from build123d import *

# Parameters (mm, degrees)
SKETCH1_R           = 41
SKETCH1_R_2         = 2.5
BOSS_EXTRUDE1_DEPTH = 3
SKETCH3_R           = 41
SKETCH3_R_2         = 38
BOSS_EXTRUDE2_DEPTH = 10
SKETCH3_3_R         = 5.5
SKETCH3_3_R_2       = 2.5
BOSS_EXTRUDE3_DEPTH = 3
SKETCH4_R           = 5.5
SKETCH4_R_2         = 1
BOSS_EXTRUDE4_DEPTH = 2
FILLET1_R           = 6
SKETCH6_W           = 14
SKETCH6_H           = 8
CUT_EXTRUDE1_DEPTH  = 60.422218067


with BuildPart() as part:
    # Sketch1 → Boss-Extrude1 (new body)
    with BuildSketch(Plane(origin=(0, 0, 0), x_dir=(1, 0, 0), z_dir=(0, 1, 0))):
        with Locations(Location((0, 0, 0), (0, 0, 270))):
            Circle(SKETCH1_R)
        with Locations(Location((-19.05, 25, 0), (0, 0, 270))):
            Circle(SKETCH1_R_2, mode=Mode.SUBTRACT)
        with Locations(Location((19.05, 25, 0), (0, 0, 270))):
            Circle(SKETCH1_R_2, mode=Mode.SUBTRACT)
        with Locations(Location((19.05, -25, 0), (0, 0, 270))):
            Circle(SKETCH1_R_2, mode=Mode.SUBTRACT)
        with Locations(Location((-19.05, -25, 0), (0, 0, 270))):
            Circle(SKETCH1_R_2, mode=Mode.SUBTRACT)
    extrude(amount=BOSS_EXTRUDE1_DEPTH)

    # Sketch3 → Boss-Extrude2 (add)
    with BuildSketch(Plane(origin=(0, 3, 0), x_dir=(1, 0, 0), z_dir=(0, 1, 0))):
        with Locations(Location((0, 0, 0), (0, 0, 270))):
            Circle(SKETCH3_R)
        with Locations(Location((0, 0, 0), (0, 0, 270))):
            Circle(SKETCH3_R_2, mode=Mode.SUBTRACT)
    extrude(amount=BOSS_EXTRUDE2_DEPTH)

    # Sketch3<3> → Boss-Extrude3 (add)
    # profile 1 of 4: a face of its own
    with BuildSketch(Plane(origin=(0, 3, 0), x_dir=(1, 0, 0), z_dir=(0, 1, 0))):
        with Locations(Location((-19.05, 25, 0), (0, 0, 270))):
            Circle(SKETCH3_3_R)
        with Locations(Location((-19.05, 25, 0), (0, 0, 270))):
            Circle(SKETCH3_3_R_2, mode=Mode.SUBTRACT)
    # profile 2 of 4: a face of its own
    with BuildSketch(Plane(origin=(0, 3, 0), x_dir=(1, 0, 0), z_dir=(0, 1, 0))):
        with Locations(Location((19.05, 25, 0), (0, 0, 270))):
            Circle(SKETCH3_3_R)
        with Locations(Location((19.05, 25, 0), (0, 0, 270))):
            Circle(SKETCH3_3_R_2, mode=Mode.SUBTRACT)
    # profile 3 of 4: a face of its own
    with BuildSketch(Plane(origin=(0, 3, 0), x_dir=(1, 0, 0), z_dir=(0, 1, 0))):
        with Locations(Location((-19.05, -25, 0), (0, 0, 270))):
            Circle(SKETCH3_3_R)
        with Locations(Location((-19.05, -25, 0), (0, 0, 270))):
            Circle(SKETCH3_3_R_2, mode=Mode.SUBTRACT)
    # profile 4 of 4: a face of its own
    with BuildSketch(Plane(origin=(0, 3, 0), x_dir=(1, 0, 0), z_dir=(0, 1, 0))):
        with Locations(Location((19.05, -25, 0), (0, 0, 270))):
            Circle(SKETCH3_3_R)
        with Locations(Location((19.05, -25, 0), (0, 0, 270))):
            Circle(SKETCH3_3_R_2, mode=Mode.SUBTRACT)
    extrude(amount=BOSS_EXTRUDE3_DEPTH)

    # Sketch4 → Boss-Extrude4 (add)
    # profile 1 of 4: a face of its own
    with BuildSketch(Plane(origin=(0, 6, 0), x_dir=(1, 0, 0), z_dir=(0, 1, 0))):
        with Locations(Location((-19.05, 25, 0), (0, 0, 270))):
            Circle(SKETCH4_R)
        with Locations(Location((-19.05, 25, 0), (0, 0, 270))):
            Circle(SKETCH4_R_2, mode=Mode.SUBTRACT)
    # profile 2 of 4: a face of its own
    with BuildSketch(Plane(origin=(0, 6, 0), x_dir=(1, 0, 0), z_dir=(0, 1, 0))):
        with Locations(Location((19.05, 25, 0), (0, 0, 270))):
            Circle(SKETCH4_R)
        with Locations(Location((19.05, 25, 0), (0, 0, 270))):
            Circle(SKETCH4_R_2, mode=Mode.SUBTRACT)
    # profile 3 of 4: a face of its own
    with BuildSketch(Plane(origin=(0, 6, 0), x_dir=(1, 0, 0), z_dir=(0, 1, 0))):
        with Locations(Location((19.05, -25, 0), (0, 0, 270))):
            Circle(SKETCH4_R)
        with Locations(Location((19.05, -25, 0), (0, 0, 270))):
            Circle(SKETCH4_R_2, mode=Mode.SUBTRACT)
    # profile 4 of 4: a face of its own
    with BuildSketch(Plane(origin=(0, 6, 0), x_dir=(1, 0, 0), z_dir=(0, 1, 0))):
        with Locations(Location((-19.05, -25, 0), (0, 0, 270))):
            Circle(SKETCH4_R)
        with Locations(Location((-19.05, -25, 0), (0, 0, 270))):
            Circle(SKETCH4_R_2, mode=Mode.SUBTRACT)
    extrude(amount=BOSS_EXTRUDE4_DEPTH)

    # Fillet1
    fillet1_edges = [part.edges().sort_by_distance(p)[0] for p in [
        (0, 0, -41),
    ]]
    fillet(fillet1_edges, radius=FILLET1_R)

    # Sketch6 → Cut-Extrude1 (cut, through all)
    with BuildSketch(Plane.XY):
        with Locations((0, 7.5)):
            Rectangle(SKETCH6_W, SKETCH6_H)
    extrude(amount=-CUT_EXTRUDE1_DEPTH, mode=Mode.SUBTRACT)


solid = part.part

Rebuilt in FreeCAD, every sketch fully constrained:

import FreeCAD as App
import Part
import Sketcher


def edges_at(feature, points):
    """Names of the edges that pass closest to the given points."""
    edges = feature.Shape.Edges
    near = lambda p: min(range(len(edges)), key=lambda i: edges[i].distToShape(Part.Vertex(*p))[0])
    return sorted({f"Edge{near(p) + 1}" for p in points})

doc = App.newDocument("Part")
body = doc.addObject("PartDesign::Body", "Body")

sketch1 = body.newObject("Sketcher::SketchObject", "Sketch")
sketch1.AttachmentSupport = (doc.getObject("XZ_Plane"), [""])
sketch1.MapMode = "FlatFace"
sketch1.addGeometry([
    Part.Circle(App.Vector(0, 0, 0), App.Vector(0, 0, 1), 41),
    Part.Circle(App.Vector(-19.05, -25, 0), App.Vector(0, 0, 1), 2.5),
    Part.Circle(App.Vector(-19.05, 25, 0), App.Vector(0, 0, 1), 2.5),
    Part.Circle(App.Vector(19.05, -25, 0), App.Vector(0, 0, 1), 2.5),
    Part.Circle(App.Vector(19.05, 25, 0), App.Vector(0, 0, 1), 2.5),
], False)
sketch1.addConstraint([
    Sketcher.Constraint("Coincident", 0, 3, -1, 1),
    Sketcher.Constraint("Equal", 1, 2),
    Sketcher.Constraint("Equal", 2, 3),
    Sketcher.Constraint("Equal", 3, 4),
    Sketcher.Constraint("Symmetric", 2, 3, 3, 3, -1, 1),
    Sketcher.Constraint("Symmetric", 1, 3, 4, 3, -1, 1),
    Sketcher.Constraint("Symmetric", 1, 3, 3, 3, -2),
    Sketcher.Constraint("Diameter", 0, 82.0),
    Sketcher.Constraint("Diameter", 1, 5.0),
    Sketcher.Constraint("DistanceY", 1, 3, -1, 1, 25.0),
    Sketcher.Constraint("DistanceX", 1, 3, 3, 3, 38.1),
])
pad1 = body.newObject("PartDesign::Pad", "Pad")
pad1.Profile = sketch1
pad1.Length = 3
pad1.Reversed = True

sketch2 = body.newObject("Sketcher::SketchObject", "Sketch001")
sketch2.AttachmentSupport = (doc.getObject("XZ_Plane"), [""])
sketch2.MapMode = "FlatFace"
sketch2.AttachmentOffset = App.Placement(App.Vector(0, 0, -3), App.Rotation())
sketch2.addGeometry([
    Part.Circle(App.Vector(0, 0, 0), App.Vector(0, 0, 1), 41),
    Part.Circle(App.Vector(0, 0, 0), App.Vector(0, 0, 1), 38),
], False)
sketch2.addConstraint([
    Sketcher.Constraint("Coincident", 0, 3, -1, 1),
    Sketcher.Constraint("Coincident", 1, 3, -1, 1),
    Sketcher.Constraint("Diameter", 0, 82.0),
    Sketcher.Constraint("Diameter", 1, 76.0),
])
pad2 = body.newObject("PartDesign::Pad", "Pad001")
pad2.Profile = sketch2
pad2.Length = 10
pad2.Reversed = True

sketch3 = body.newObject("Sketcher::SketchObject", "Sketch002")
sketch3.AttachmentSupport = (doc.getObject("XZ_Plane"), [""])
sketch3.MapMode = "FlatFace"
sketch3.AttachmentOffset = App.Placement(App.Vector(0, 0, -3), App.Rotation())
sketch3.addGeometry([
    Part.Circle(App.Vector(-19.05, -25, 0), App.Vector(0, 0, 1), 5.5),
    Part.Circle(App.Vector(-19.05, -25, 0), App.Vector(0, 0, 1), 2.5),
    Part.Circle(App.Vector(19.05, -25, 0), App.Vector(0, 0, 1), 5.5),
    Part.Circle(App.Vector(19.05, -25, 0), App.Vector(0, 0, 1), 2.5),
    Part.Circle(App.Vector(-19.05, 25, 0), App.Vector(0, 0, 1), 5.5),
    Part.Circle(App.Vector(-19.05, 25, 0), App.Vector(0, 0, 1), 2.5),
    Part.Circle(App.Vector(19.05, 25, 0), App.Vector(0, 0, 1), 5.5),
    Part.Circle(App.Vector(19.05, 25, 0), App.Vector(0, 0, 1), 2.5),
], False)
sketch3.addConstraint([
    Sketcher.Constraint("Coincident", 1, 3, 0, 3),
    Sketcher.Constraint("Coincident", 3, 3, 2, 3),
    Sketcher.Constraint("Coincident", 5, 3, 4, 3),
    Sketcher.Constraint("Coincident", 7, 3, 6, 3),
    Sketcher.Constraint("Equal", 0, 2),
    Sketcher.Constraint("Equal", 1, 3),
    Sketcher.Constraint("Equal", 2, 4),
    Sketcher.Constraint("Equal", 3, 5),
    Sketcher.Constraint("Equal", 4, 6),
    Sketcher.Constraint("Equal", 5, 7),
    Sketcher.Constraint("Symmetric", 2, 3, 4, 3, -1, 1),
    Sketcher.Constraint("Symmetric", 0, 3, 6, 3, -1, 1),
    Sketcher.Constraint("Symmetric", 0, 3, 2, 3, -2),
    Sketcher.Constraint("Diameter", 0, 11.0),
    Sketcher.Constraint("Diameter", 1, 5.0),
    Sketcher.Constraint("DistanceY", 0, 3, -1, 1, 25.0),
    Sketcher.Constraint("DistanceX", 0, 3, 2, 3, 38.1),
])
pad3 = body.newObject("PartDesign::Pad", "Pad002")
pad3.Profile = sketch3
pad3.Length = 3
pad3.Reversed = True

sketch4 = body.newObject("Sketcher::SketchObject", "Sketch003")
sketch4.AttachmentSupport = (doc.getObject("XZ_Plane"), [""])
sketch4.MapMode = "FlatFace"
sketch4.AttachmentOffset = App.Placement(App.Vector(0, 0, -6), App.Rotation())
sketch4.addGeometry([
    Part.Circle(App.Vector(-19.05, -25, 0), App.Vector(0, 0, 1), 5.5),
    Part.Circle(App.Vector(-19.05, -25, 0), App.Vector(0, 0, 1), 1),
    Part.Circle(App.Vector(19.05, -25, 0), App.Vector(0, 0, 1), 5.5),
    Part.Circle(App.Vector(19.05, -25, 0), App.Vector(0, 0, 1), 1),
    Part.Circle(App.Vector(19.05, 25, 0), App.Vector(0, 0, 1), 5.5),
    Part.Circle(App.Vector(19.05, 25, 0), App.Vector(0, 0, 1), 1),
    Part.Circle(App.Vector(-19.05, 25, 0), App.Vector(0, 0, 1), 5.5),
    Part.Circle(App.Vector(-19.05, 25, 0), App.Vector(0, 0, 1), 1),
], False)
sketch4.addConstraint([
    Sketcher.Constraint("Coincident", 1, 3, 0, 3),
    Sketcher.Constraint("Coincident", 3, 3, 2, 3),
    Sketcher.Constraint("Coincident", 5, 3, 4, 3),
    Sketcher.Constraint("Coincident", 7, 3, 6, 3),
    Sketcher.Constraint("Equal", 0, 2),
    Sketcher.Constraint("Equal", 1, 3),
    Sketcher.Constraint("Equal", 2, 4),
    Sketcher.Constraint("Equal", 3, 5),
    Sketcher.Constraint("Equal", 4, 6),
    Sketcher.Constraint("Equal", 5, 7),
    Sketcher.Constraint("Symmetric", 0, 3, 4, 3, -1, 1),
    Sketcher.Constraint("Symmetric", 2, 3, 6, 3, -1, 1),
    Sketcher.Constraint("Symmetric", 0, 3, 2, 3, -2),
    Sketcher.Constraint("Diameter", 0, 11.0),
    Sketcher.Constraint("Diameter", 1, 2.0),
    Sketcher.Constraint("DistanceY", 0, 3, -1, 1, 25.0),
    Sketcher.Constraint("DistanceX", 0, 3, 2, 3, 38.1),
])
pad4 = body.newObject("PartDesign::Pad", "Pad003")
pad4.Profile = sketch4
pad4.Length = 2
pad4.Reversed = True
doc.recompute()

fillet = body.newObject("PartDesign::Fillet", "Fillet")
fillet.Base = (pad4, edges_at(pad4, [(0, 0, -41)]))
fillet.Radius = 6

sketch5 = body.newObject("Sketcher::SketchObject", "Sketch004")
sketch5.AttachmentSupport = (doc.getObject("XY_Plane"), [""])
sketch5.MapMode = "FlatFace"
sketch5.addGeometry([
    Part.LineSegment(App.Vector(-7, 11.5, 0), App.Vector(-7, 3.5, 0)),
    Part.LineSegment(App.Vector(-7, 3.5, 0), App.Vector(7, 3.5, 0)),
    Part.LineSegment(App.Vector(7, 3.5, 0), App.Vector(7, 11.5, 0)),
    Part.LineSegment(App.Vector(7, 11.5, 0), App.Vector(-7, 11.5, 0)),
], False)
sketch5.addConstraint([
    Sketcher.Constraint("Coincident", 0, 2, 1, 1),
    Sketcher.Constraint("Coincident", 1, 2, 2, 1),
    Sketcher.Constraint("Coincident", 2, 2, 3, 1),
    Sketcher.Constraint("Coincident", 3, 2, 0, 1),
    Sketcher.Constraint("Vertical", 0),
    Sketcher.Constraint("Horizontal", 1),
    Sketcher.Constraint("Vertical", 2),
    Sketcher.Constraint("Horizontal", 3),
    Sketcher.Constraint("DistanceX", 1, 1, 1, 2, 14.0),
    Sketcher.Constraint("DistanceY", 0, 2, 0, 1, 8.0),
    Sketcher.Constraint("DistanceX", 0, 2, -1, 1, 7.0),
    Sketcher.Constraint("DistanceY", -1, 1, 0, 2, 3.5),
])
pocket1 = body.newObject("PartDesign::Pocket", "Pocket")
pocket1.Profile = sketch5
pocket1.Type = "ThroughAll"

doc.recompute()
